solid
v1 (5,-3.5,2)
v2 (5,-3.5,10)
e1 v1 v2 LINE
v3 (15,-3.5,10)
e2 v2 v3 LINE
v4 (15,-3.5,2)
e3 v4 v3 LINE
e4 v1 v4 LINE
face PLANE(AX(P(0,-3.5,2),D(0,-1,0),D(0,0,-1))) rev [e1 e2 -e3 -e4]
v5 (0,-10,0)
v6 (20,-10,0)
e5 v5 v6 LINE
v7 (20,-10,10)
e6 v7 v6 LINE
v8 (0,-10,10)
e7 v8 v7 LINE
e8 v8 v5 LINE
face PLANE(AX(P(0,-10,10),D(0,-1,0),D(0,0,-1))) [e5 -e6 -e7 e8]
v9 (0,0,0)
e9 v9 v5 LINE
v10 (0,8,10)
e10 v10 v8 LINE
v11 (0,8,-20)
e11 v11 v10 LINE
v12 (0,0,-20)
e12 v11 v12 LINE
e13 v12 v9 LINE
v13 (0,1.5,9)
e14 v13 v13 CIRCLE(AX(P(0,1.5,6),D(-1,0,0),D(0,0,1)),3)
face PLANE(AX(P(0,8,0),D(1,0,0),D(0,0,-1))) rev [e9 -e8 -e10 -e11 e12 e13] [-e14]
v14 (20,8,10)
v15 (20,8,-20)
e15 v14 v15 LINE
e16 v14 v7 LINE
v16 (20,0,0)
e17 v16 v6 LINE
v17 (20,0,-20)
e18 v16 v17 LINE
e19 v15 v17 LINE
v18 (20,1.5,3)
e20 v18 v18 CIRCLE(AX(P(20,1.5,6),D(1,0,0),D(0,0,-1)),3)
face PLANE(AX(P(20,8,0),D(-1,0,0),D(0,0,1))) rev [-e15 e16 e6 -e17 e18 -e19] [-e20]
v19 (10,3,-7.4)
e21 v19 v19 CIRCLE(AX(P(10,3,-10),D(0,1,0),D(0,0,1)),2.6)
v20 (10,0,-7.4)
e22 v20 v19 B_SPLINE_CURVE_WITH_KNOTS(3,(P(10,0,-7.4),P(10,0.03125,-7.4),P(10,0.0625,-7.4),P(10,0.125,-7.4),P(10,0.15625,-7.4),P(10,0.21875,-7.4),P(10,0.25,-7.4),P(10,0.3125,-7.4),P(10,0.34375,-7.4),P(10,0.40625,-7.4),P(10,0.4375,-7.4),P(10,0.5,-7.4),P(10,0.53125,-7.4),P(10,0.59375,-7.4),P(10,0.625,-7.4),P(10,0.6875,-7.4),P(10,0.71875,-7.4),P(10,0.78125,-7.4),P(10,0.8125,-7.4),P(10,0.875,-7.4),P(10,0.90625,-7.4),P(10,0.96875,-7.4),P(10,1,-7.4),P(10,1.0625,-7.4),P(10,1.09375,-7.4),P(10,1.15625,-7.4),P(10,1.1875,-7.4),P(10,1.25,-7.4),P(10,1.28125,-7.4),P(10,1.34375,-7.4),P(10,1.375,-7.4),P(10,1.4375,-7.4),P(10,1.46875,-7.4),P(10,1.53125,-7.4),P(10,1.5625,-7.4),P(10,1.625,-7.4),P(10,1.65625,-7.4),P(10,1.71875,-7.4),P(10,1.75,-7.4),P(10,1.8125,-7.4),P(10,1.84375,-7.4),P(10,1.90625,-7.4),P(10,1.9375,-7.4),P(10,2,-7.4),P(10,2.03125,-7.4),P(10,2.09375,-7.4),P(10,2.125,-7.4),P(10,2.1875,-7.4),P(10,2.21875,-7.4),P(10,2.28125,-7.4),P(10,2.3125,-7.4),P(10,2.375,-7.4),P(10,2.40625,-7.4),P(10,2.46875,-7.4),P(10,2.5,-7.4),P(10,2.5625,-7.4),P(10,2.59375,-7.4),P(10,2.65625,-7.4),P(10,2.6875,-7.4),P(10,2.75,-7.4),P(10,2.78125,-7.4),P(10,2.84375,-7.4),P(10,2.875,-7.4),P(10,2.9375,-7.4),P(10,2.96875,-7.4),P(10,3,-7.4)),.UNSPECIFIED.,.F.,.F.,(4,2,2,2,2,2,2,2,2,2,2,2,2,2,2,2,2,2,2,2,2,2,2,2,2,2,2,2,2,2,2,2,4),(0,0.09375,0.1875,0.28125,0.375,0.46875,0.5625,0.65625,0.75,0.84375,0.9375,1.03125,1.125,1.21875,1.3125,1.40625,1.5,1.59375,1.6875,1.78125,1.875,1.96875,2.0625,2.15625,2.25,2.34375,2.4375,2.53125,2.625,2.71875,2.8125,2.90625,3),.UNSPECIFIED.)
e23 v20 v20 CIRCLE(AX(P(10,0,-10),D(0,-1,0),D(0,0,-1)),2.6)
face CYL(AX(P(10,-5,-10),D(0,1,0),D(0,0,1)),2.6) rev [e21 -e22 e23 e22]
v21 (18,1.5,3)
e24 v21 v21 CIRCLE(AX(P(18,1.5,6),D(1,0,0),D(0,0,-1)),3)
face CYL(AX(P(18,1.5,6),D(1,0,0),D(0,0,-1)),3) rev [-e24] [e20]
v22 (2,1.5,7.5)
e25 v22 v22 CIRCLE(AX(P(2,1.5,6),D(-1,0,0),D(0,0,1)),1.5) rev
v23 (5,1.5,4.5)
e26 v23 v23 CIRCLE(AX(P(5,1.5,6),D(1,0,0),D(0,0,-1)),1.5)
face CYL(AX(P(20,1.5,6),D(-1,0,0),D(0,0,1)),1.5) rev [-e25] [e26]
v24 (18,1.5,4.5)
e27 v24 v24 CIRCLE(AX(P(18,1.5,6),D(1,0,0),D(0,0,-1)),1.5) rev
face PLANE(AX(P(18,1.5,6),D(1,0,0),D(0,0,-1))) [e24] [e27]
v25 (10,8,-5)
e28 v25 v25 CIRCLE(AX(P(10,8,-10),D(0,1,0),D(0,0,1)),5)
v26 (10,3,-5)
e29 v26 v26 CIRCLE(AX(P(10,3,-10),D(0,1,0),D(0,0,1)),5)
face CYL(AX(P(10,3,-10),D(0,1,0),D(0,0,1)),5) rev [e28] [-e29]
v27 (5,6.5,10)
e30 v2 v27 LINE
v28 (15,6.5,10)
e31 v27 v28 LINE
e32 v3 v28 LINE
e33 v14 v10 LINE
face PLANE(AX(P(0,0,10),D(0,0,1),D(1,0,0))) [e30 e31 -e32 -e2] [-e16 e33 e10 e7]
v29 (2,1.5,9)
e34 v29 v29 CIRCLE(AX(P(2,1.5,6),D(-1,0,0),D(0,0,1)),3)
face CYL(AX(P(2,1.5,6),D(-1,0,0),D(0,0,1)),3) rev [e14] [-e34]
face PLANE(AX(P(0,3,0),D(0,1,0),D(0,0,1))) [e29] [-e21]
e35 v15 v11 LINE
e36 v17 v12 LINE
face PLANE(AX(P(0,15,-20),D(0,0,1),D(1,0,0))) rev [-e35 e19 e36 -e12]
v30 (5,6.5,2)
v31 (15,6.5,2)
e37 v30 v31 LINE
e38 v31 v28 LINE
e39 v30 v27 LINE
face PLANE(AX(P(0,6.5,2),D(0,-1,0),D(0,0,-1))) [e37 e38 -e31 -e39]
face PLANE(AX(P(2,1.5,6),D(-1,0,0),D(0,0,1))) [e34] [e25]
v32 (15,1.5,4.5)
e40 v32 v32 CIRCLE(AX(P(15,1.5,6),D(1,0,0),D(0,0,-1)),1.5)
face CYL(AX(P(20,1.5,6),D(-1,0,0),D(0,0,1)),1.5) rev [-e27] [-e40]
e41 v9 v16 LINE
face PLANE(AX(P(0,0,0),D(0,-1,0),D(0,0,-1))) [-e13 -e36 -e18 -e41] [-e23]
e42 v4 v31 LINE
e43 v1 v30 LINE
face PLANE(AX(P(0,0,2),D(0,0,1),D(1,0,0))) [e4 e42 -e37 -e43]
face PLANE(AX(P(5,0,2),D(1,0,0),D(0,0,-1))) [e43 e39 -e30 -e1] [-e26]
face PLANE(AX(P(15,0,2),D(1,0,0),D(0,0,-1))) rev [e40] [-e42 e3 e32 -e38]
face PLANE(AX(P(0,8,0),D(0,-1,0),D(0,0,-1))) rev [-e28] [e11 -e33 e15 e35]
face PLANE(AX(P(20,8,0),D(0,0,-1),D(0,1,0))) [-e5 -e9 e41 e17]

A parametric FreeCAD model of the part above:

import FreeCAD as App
import Part
import Sketcher
from FreeCAD import Vector

doc = App.newDocument("Part")
body = doc.addObject("PartDesign::Body", "Body")

sketch1 = body.newObject("Sketcher::SketchObject", "Sketch")
sketch1.AttachmentSupport = (doc.getObject("XZ_Plane"), [""])
sketch1.MapMode = "FlatFace"
sketch1.addGeometry([
    Part.LineSegment(Vector(0, -20, 0), Vector(0, 0, 0)),
    Part.LineSegment(Vector(0, 0, 0), Vector(20, 0, 0)),
    Part.LineSegment(Vector(20, 0, 0), Vector(20, -20, 0)),
    Part.LineSegment(Vector(20, -20, 0), Vector(0, -20, 0)),
], False)
sketch1.addConstraint([
    Sketcher.Constraint("Coincident", 0, 2, 1, 1),
    Sketcher.Constraint("Coincident", 1, 2, 2, 1),
    Sketcher.Constraint("Coincident", 2, 2, 3, 1),
    Sketcher.Constraint("Coincident", 3, 2, 0, 1),
    Sketcher.Constraint("Vertical", 0),
    Sketcher.Constraint("Horizontal", 1),
    Sketcher.Constraint("Vertical", 2),
    Sketcher.Constraint("Horizontal", 3),
    Sketcher.Constraint("Coincident", 0, 2, -1, 1),
    Sketcher.Constraint("Equal", 3, 0),
    Sketcher.Constraint("DistanceX", 1, 1, 1, 2, 20.0),
])
pad1 = body.newObject("PartDesign::Pad", "Pad")
pad1.Profile = sketch1
pad1.Length = 8
pad1.Reversed = True

sketch2 = body.newObject("Sketcher::SketchObject", "Sketch001")
sketch2.AttachmentSupport = (doc.getObject("YZ_Plane"), [""])
sketch2.MapMode = "FlatFace"
sketch2.addGeometry([
    Part.LineSegment(Vector(-5, -24, 0), Vector(-5, -20, 0)),
    Part.LineSegment(Vector(-5, -20, 0), Vector(8, -20, 0)),
    Part.LineSegment(Vector(8, -20, 0), Vector(8, -24, 0)),
    Part.LineSegment(Vector(8, -24, 0), Vector(-5, -24, 0)),
], False)
sketch2.addConstraint([
    Sketcher.Constraint("Coincident", 0, 2, 1, 1),
    Sketcher.Constraint("Coincident", 1, 2, 2, 1),
    Sketcher.Constraint("Coincident", 2, 2, 3, 1),
    Sketcher.Constraint("Coincident", 3, 2, 0, 1),
    Sketcher.Constraint("Vertical", 0),
    Sketcher.Constraint("Horizontal", 1),
    Sketcher.Constraint("Vertical", 2),
    Sketcher.Constraint("Horizontal", 3),
    Sketcher.Constraint("DistanceX", 1, 1, 1, 2, 13.0),
    Sketcher.Constraint("DistanceY", 0, 1, 0, 2, 4.0),
    Sketcher.Constraint("DistanceX", 0, 2, -1, 1, 5.0),
    Sketcher.Constraint("DistanceY", 0, 2, -1, 1, 20.0),
])
pad2 = body.newObject("PartDesign::Pad", "Pad001")
pad2.Profile = sketch2
pad2.Length = 20

sketch3 = body.newObject("Sketcher::SketchObject", "Sketch002")
sketch3.AttachmentSupport = (doc.getObject("YZ_Plane"), [""])
sketch3.MapMode = "FlatFace"
sketch3.addGeometry([
    Part.LineSegment(Vector(8, 0, 0), Vector(-5, 0, 0)),
    Part.LineSegment(Vector(-5, 0, 0), Vector(-5, 4, 0)),
    Part.LineSegment(Vector(-5, 4, 0), Vector(8, 4, 0)),
    Part.LineSegment(Vector(8, 4, 0), Vector(8, 0, 0)),
], False)
sketch3.addConstraint([
    Sketcher.Constraint("Coincident", 0, 2, 1, 1),
    Sketcher.Constraint("Coincident", 1, 2, 2, 1),
    Sketcher.Constraint("Coincident", 2, 2, 3, 1),
    Sketcher.Constraint("Coincident", 3, 2, 0, 1),
    Sketcher.Constraint("Horizontal", 0),
    Sketcher.Constraint("Vertical", 1),
    Sketcher.Constraint("Horizontal", 2),
    Sketcher.Constraint("Vertical", 3),
    Sketcher.Constraint("PointOnObject", 0, 2, -1),
    Sketcher.Constraint("DistanceX", 0, 2, 0, 1, 13.0),
    Sketcher.Constraint("DistanceY", 1, 1, 1, 2, 4.0),
    Sketcher.Constraint("DistanceX", 0, 2, -1, 1, 5.0),
])
pad3 = body.newObject("PartDesign::Pad", "Pad002")
pad3.Profile = sketch3
pad3.Length = 20

sketch4 = body.newObject("Sketcher::SketchObject", "Sketch003")
sketch4.AttachmentSupport = (doc.getObject("XZ_Plane"), [""])
sketch4.MapMode = "FlatFace"
sketch4.AttachmentOffset = App.Placement(Vector(0, 0, -8), App.Rotation())
sketch4.addGeometry(Part.Circle(Vector(10, -10, 0), Vector(0, 0, 1), 5), False)
sketch4.addConstraint([
    Sketcher.Constraint("Diameter", 0, 10.0),
    Sketcher.Constraint("DistanceX", -1, 1, 0, 3, 10.0),
    Sketcher.Constraint("DistanceY", 0, 3, -1, 1, 10.0),
])
pocket1 = body.newObject("PartDesign::Pocket", "Pocket")
pocket1.Profile = sketch4
pocket1.Length = 5
pocket1.Reversed = True

sketch5 = body.newObject("Sketcher::SketchObject", "Sketch004")
sketch5.AttachmentSupport = (doc.getObject("XZ_Plane"), [""])
sketch5.MapMode = "FlatFace"
sketch5.AttachmentOffset = App.Placement(Vector(0, 0, -8), App.Rotation())
sketch5.addGeometry(Part.Circle(Vector(10, -10, 0), Vector(0, 0, 1), 2.6), False)
sketch5.addConstraint([
    Sketcher.Constraint("Diameter", 0, 5.2),
    Sketcher.Constraint("DistanceX", -1, 1, 0, 3, 10.0),
    Sketcher.Constraint("DistanceY", 0, 3, -1, 1, 10.0),
])
pocket2 = body.newObject("PartDesign::Pocket", "Pocket001")
pocket2.Profile = sketch5
pocket2.Length = 13
pocket2.Reversed = True

sketch6 = body.newObject("Sketcher::SketchObject", "Sketch005")
sketch6.AttachmentSupport = (doc.getObject("XY_Plane"), [""])
sketch6.MapMode = "FlatFace"
sketch6.AttachmentOffset = App.Placement(Vector(0, 0, 4), App.Rotation())
sketch6.addGeometry([
    Part.LineSegment(Vector(15, 6, 0), Vector(5, 6, 0)),
    Part.LineSegment(Vector(5, 6, 0), Vector(5, -4, 0)),
    Part.LineSegment(Vector(5, -4, 0), Vector(15, -4, 0)),
    Part.LineSegment(Vector(15, -4, 0), Vector(15, 6, 0)),
], False)
sketch6.addConstraint([
    Sketcher.Constraint("Coincident", 0, 2, 1, 1),
    Sketcher.Constraint("Coincident", 1, 2, 2, 1),
    Sketcher.Constraint("Coincident", 2, 2, 3, 1),
    Sketcher.Constraint("Coincident", 3, 2, 0, 1),
    Sketcher.Constraint("Horizontal", 0),
    Sketcher.Constraint("Vertical", 1),
    Sketcher.Constraint("Horizontal", 2),
    Sketcher.Constraint("Vertical", 3),
    Sketcher.Constraint("Equal", 2, 1),
    Sketcher.Constraint("DistanceX", 0, 2, 0, 1, 10.0),
    Sketcher.Constraint("DistanceX", -1, 1, 0, 2, 5.0),
    Sketcher.Constraint("DistanceY", -1, 1, 0, 2, 6.5),
])
pad4 = body.newObject("PartDesign::Pad", "Pad003")
pad4.Profile = sketch6
pad4.Length = 20

sketch7 = body.newObject("Sketcher::SketchObject", "Sketch006")
sketch7.AttachmentSupport = (doc.getObject("XY_Plane"), [""])
sketch7.MapMode = "FlatFace"
sketch7.AttachmentOffset = App.Placement(Vector(0, 0, 4), App.Rotation())
sketch7.addGeometry([
    Part.LineSegment(Vector(0, 8, 0), Vector(0, -5, 0)),
    Part.LineSegment(Vector(0, -5, 0), Vector(20, -5, 0)),
    Part.LineSegment(Vector(20, -5, 0), Vector(20, 8, 0)),
    Part.LineSegment(Vector(20, 8, 0), Vector(0, 8, 0)),
    Part.LineSegment(Vector(15, -4, 0), Vector(5, -4, 0)),
    Part.LineSegment(Vector(5, -4, 0), Vector(5, 6, 0)),
    Part.LineSegment(Vector(5, 6, 0), Vector(15, 6, 0)),
    Part.LineSegment(Vector(15, 6, 0), Vector(15, -4, 0)),
], False)
sketch7.addConstraint([
    Sketcher.Constraint("Coincident", 0, 2, 1, 1),
    Sketcher.Constraint("Coincident", 1, 2, 2, 1),
    Sketcher.Constraint("Coincident", 2, 2, 3, 1),
    Sketcher.Constraint("Coincident", 3, 2, 0, 1),
    Sketcher.Constraint("Coincident", 4, 2, 5, 1),
    Sketcher.Constraint("Coincident", 5, 2, 6, 1),
    Sketcher.Constraint("Coincident", 6, 2, 7, 1),
    Sketcher.Constraint("Coincident", 7, 2, 4, 1),
    Sketcher.Constraint("Vertical", 0),
    Sketcher.Constraint("Horizontal", 1),
    Sketcher.Constraint("Vertical", 2),
    Sketcher.Constraint("Horizontal", 3),
    Sketcher.Constraint("Horizontal", 4),
    Sketcher.Constraint("Vertical", 5),
    Sketcher.Constraint("Horizontal", 6),
    Sketcher.Constraint("Vertical", 7),
    Sketcher.Constraint("PointOnObject", 0, 2, -2),
    Sketcher.Constraint("Equal", 6, 5),
    Sketcher.Constraint("DistanceX", 1, 1, 1, 2, 20.0),
    Sketcher.Constraint("DistanceX", 4, 2, 4, 1, 10.0),
    Sketcher.Constraint("DistanceY", 0, 2, 0, 1, 13.0),
    Sketcher.Constraint("DistanceY", 0, 2, -1, 1, 5.0),
    Sketcher.Constraint("DistanceX", -1, 1, 4, 2, 5.0),
    Sketcher.Constraint("DistanceY", 4, 2, -1, 1, 3.5),
])
pad5 = body.newObject("PartDesign::Pad", "Pad004")
pad5.Profile = sketch7
pad5.Length = 26

sketch8 = body.newObject("Sketcher::SketchObject", "Sketch007")
sketch8.AttachmentSupport = (doc.getObject("XY_Plane"), [""])
sketch8.MapMode = "FlatFace"
sketch8.AttachmentOffset = App.Placement(Vector(0, 0, 24), App.Rotation())
sketch8.addGeometry([
    Part.LineSegment(Vector(5, 6, 0), Vector(5, -4, 0)),
    Part.LineSegment(Vector(5, -4, 0), Vector(15, -4, 0)),
    Part.LineSegment(Vector(15, -4, 0), Vector(15, 6, 0)),
    Part.LineSegment(Vector(15, 6, 0), Vector(5, 6, 0)),
], False)
sketch8.addConstraint([
    Sketcher.Constraint("Coincident", 0, 2, 1, 1),
    Sketcher.Constraint("Coincident", 1, 2, 2, 1),
    Sketcher.Constraint("Coincident", 2, 2, 3, 1),
    Sketcher.Constraint("Coincident", 3, 2, 0, 1),
    Sketcher.Constraint("Vertical", 0),
    Sketcher.Constraint("Horizontal", 1),
    Sketcher.Constraint("Vertical", 2),
    Sketcher.Constraint("Horizontal", 3),
    Sketcher.Constraint("Equal", 3, 0),
    Sketcher.Constraint("DistanceX", 1, 1, 1, 2, 10.0),
    Sketcher.Constraint("DistanceX", -1, 1, 0, 2, 5.0),
    Sketcher.Constraint("DistanceY", 0, 2, -1, 1, 3.5),
])
pocket3 = body.newObject("PartDesign::Pocket", "Pocket002")
pocket3.Profile = sketch8
pocket3.Length = 14

sketch9 = body.newObject("Sketcher::SketchObject", "Sketch008")
sketch9.AttachmentSupport = (doc.getObject("YZ_Plane"), [""])
sketch9.MapMode = "FlatFace"
sketch9.addGeometry([
    Part.LineSegment(Vector(8, 10, 0), Vector(-5, 10, 0)),
    Part.LineSegment(Vector(-5, 10, 0), Vector(-5, 30, 0)),
    Part.LineSegment(Vector(-5, 30, 0), Vector(8, 30, 0)),
    Part.LineSegment(Vector(8, 30, 0), Vector(8, 10, 0)),
], False)
sketch9.addConstraint([
    Sketcher.Constraint("Coincident", 0, 2, 1, 1),
    Sketcher.Constraint("Coincident", 1, 2, 2, 1),
    Sketcher.Constraint("Coincident", 2, 2, 3, 1),
    Sketcher.Constraint("Coincident", 3, 2, 0, 1),
    Sketcher.Constraint("Horizontal", 0),
    Sketcher.Constraint("Vertical", 1),
    Sketcher.Constraint("Horizontal", 2),
    Sketcher.Constraint("Vertical", 3),
    Sketcher.Constraint("DistanceX", 0, 2, 0, 1, 13.0),
    Sketcher.Constraint("DistanceY", 1, 1, 1, 2, 20.0),
    Sketcher.Constraint("DistanceX", 0, 2, -1, 1, 5.0),
    Sketcher.Constraint("DistanceY", -1, 1, 0, 2, 10.0),
])
pocket4 = body.newObject("PartDesign::Pocket", "Pocket003")
pocket4.Profile = sketch9
pocket4.Length = 20
pocket4.Reversed = True

sketch10 = body.newObject("Sketcher::SketchObject", "Sketch009")
sketch10.AttachmentSupport = (doc.getObject("XY_Plane"), [""])
sketch10.MapMode = "FlatFace"
sketch10.AttachmentOffset = App.Placement(Vector(0, 0, 10), App.Rotation())
sketch10.addGeometry([
    Part.LineSegment(Vector(5, 6, 0), Vector(5, -4, 0)),
    Part.LineSegment(Vector(5, -4, 0), Vector(15, -4, 0)),
    Part.LineSegment(Vector(15, -4, 0), Vector(15, 6, 0)),
    Part.LineSegment(Vector(15, 6, 0), Vector(5, 6, 0)),
], False)
sketch10.addConstraint([
    Sketcher.Constraint("Coincident", 0, 2, 1, 1),
    Sketcher.Constraint("Coincident", 1, 2, 2, 1),
    Sketcher.Constraint("Coincident", 2, 2, 3, 1),
    Sketcher.Constraint("Coincident", 3, 2, 0, 1),
    Sketcher.Constraint("Vertical", 0),
    Sketcher.Constraint("Horizontal", 1),
    Sketcher.Constraint("Vertical", 2),
    Sketcher.Constraint("Horizontal", 3),
    Sketcher.Constraint("Equal", 3, 0),
    Sketcher.Constraint("DistanceX", 1, 1, 1, 2, 10.0),
    Sketcher.Constraint("DistanceX", -1, 1, 0, 2, 5.0),
    Sketcher.Constraint("DistanceY", 0, 2, -1, 1, 3.5),
])
pocket5 = body.newObject("PartDesign::Pocket", "Pocket004")
pocket5.Profile = sketch10
pocket5.Length = 8

sketch11 = body.newObject("Sketcher::SketchObject", "Sketch010")
sketch11.AttachmentSupport = (doc.getObject("YZ_Plane"), [""])
sketch11.MapMode = "FlatFace"
sketch11.addGeometry(Part.Circle(Vector(1.5, 6, 0), Vector(0, 0, 1), 1.5), False)
sketch11.addConstraint([
    Sketcher.Constraint("Diameter", 0, 3.0),
    Sketcher.Constraint("DistanceY", -1, 1, 0, 3, 6.0),
    Sketcher.Constraint("DistanceX", -1, 1, 0, 3, 1.5),
])
pocket6 = body.newObject("PartDesign::Pocket", "Pocket005")
pocket6.Profile = sketch11
pocket6.Length = 20
pocket6.Reversed = True

sketch12 = body.newObject("Sketcher::SketchObject", "Sketch011")
sketch12.AttachmentSupport = (doc.getObject("YZ_Plane"), [""])
sketch12.MapMode = "FlatFace"
sketch12.addGeometry(Part.Circle(Vector(1.5, 6, 0), Vector(0, 0, 1), 3), False)
sketch12.addConstraint([
    Sketcher.Constraint("Diameter", 0, 6.0),
    Sketcher.Constraint("DistanceY", -1, 1, 0, 3, 6.0),
    Sketcher.Constraint("DistanceX", -1, 1, 0, 3, 1.5),
])
pocket7 = body.newObject("PartDesign::Pocket", "Pocket006")
pocket7.Profile = sketch12
pocket7.Length = 2
pocket7.Reversed = True

sketch13 = body.newObject("Sketcher::SketchObject", "Sketch012")
sketch13.AttachmentSupport = (doc.getObject("YZ_Plane"), [""])
sketch13.MapMode = "FlatFace"
sketch13.AttachmentOffset = App.Placement(Vector(0, 0, 18), App.Rotation())
sketch13.addGeometry(Part.Circle(Vector(1.5, 6, 0), Vector(0, 0, 1), 3), False)
sketch13.addConstraint([
    Sketcher.Constraint("Diameter", 0, 6.0),
    Sketcher.Constraint("DistanceY", -1, 1, 0, 3, 6.0),
    Sketcher.Constraint("DistanceX", -1, 1, 0, 3, 1.5),
])
pocket8 = body.newObject("PartDesign::Pocket", "Pocket007")
pocket8.Profile = sketch13
pocket8.Length = 2
pocket8.Reversed = True

sketch14 = body.newObject("Sketcher::SketchObject", "Sketch013")
sketch14.AttachmentSupport = (doc.getObject("XZ_Plane"), [""])
sketch14.MapMode = "FlatFace"
sketch14.AttachmentOffset = App.Placement(Vector(0, 0, 5), App.Rotation())
sketch14.addGeometry([
    Part.LineSegment(Vector(0, -20, 0), Vector(0, -24, 0)),
    Part.LineSegment(Vector(0, -24, 0), Vector(20, -24, 0)),
    Part.LineSegment(Vector(20, -24, 0), Vector(20, -20, 0)),
    Part.LineSegment(Vector(20, -20, 0), Vector(0, -20, 0)),
], False)
sketch14.addConstraint([
    Sketcher.Constraint("Coincident", 0, 2, 1, 1),
    Sketcher.Constraint("Coincident", 1, 2, 2, 1),
    Sketcher.Constraint("Coincident", 2, 2, 3, 1),
    Sketcher.Constraint("Coincident", 3, 2, 0, 1),
    Sketcher.Constraint("Vertical", 0),
    Sketcher.Constraint("Horizontal", 1),
    Sketcher.Constraint("Vertical", 2),
    Sketcher.Constraint("Horizontal", 3),
    Sketcher.Constraint("PointOnObject", 0, 2, -2),
    Sketcher.Constraint("DistanceX", 1, 1, 1, 2, 20.0),
    Sketcher.Constraint("DistanceY", 0, 2, 0, 1, 4.0),
    Sketcher.Constraint("DistanceY", 0, 2, -1, 1, 24.0),
])
pocket9 = body.newObject("PartDesign::Pocket", "Pocket008")
pocket9.Profile = sketch14
pocket9.Length = 20

sketch15 = body.newObject("Sketcher::SketchObject", "Sketch014")
sketch15.AttachmentSupport = (doc.getObject("YZ_Plane"), [""])
sketch15.MapMode = "FlatFace"
sketch15.AttachmentOffset = App.Placement(Vector(0, 0, 20), App.Rotation())
sketch15.addGeometry([
    Part.LineSegment(Vector(-5, 10, 0), Vector(-10, 10, 0)),
    Part.LineSegment(Vector(-10, 10, 0), Vector(-10, 0, 0)),
    Part.LineSegment(Vector(-10, 0, 0), Vector(-5, 0, 0)),
    Part.LineSegment(Vector(-5, 0, 0), Vector(-5, 10, 0)),
], False)
sketch15.addConstraint([
    Sketcher.Constraint("Coincident", 0, 2, 1, 1),
    Sketcher.Constraint("Coincident", 1, 2, 2, 1),
    Sketcher.Constraint("Coincident", 2, 2, 3, 1),
    Sketcher.Constraint("Coincident", 3, 2, 0, 1),
    Sketcher.Constraint("Horizontal", 0),
    Sketcher.Constraint("Vertical", 1),
    Sketcher.Constraint("Horizontal", 2),
    Sketcher.Constraint("Vertical", 3),
    Sketcher.Constraint("PointOnObject", 1, 2, -1),
    Sketcher.Constraint("DistanceX", 0, 2, 0, 1, 5.0),
    Sketcher.Constraint("DistanceY", 1, 2, 1, 1, 10.0),
    Sketcher.Constraint("DistanceX", 0, 2, -1, 1, 10.0),
])
pad6 = body.newObject("PartDesign::Pad", "Pad005")
pad6.Profile = sketch15
pad6.Length = 20
pad6.Reversed = True

doc.recompute()
